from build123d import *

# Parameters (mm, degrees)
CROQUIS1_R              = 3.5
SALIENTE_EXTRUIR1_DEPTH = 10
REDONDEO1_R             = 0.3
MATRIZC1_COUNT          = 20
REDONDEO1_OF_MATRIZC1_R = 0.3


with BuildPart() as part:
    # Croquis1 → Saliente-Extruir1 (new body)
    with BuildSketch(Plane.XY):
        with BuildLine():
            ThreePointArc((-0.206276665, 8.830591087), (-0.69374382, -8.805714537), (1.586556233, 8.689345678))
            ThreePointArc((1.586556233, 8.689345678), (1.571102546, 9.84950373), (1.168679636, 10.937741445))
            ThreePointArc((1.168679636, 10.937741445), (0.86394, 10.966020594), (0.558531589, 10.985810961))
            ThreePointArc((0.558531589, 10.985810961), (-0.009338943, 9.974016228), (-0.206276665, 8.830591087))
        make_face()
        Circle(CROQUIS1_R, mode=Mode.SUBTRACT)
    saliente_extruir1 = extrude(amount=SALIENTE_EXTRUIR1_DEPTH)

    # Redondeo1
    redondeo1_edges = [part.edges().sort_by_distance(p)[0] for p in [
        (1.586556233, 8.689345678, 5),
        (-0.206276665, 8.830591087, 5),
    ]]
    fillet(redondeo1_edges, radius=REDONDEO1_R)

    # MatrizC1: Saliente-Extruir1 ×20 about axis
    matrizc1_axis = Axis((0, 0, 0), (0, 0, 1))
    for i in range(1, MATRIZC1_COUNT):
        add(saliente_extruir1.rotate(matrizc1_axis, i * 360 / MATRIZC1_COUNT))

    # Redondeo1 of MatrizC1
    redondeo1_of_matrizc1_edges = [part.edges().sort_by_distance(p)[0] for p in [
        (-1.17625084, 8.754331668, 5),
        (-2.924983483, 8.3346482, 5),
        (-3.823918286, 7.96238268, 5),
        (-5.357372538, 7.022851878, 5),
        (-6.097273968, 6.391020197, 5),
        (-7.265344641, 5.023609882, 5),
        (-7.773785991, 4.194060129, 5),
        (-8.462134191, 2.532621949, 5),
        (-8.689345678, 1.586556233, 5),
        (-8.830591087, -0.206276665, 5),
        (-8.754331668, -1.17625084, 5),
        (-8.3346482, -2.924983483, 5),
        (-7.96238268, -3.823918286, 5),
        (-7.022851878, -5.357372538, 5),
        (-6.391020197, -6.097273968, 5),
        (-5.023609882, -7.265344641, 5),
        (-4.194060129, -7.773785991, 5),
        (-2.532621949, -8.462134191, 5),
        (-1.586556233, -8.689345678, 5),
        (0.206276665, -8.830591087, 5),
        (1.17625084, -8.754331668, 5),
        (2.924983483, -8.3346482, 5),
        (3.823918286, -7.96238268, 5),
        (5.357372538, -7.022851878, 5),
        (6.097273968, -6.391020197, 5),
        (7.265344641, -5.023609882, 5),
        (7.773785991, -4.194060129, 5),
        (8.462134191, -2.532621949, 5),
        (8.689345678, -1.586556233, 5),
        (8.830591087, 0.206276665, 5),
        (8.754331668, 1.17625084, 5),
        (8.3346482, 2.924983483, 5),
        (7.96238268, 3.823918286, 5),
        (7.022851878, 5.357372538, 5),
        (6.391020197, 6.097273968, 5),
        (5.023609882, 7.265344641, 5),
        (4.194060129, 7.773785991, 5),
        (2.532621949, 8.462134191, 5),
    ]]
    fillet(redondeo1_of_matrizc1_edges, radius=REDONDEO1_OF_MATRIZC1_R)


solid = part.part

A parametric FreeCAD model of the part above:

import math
import FreeCAD as App
import Part
import Sketcher
from FreeCAD import Vector
Q = App.Units.Quantity


def edges_at(feature, points):
    """Names of the edges that pass closest to the given points."""
    edges = feature.Shape.Edges
    near = lambda p: min(range(len(edges)), key=lambda i: edges[i].distToShape(Part.Vertex(*p))[0])
    return sorted({f"Edge{near(p) + 1}" for p in points})

doc = App.newDocument("Part")
body = doc.addObject("PartDesign::Body", "Body")

# Sketch on XY plane
sketch1 = doc.addObject("Sketcher::SketchObject", "Sketch")
body.addObject(sketch1)
sketch1.AttachmentSupport = (doc.XY_Plane, [""])
sketch1.MapMode = "FlatFace"
sketch1.addGeometry([
    Part.ArcOfCircle(Part.Circle(Vector(0, 0, 0), Vector(0, 0, 1), 8.833), math.radians(91.338147), math.radians(439.652553)),  # 0
    Part.ArcOfCircle(Part.Circle(Vector(-1.791587, 9.22453, 0), Vector(0, 0, 1), 3.420273), math.radians(-9.002295), math.radians(30.0595)),  # 1
    Part.ArcOfCircle(Part.Circle(Vector(0, -0.000002, 0), Vector(0, 0, 1), 11.000002), math.radians(83.90118), math.radians(87.089521)),  # 2
    Part.ArcOfCircle(Part.Circle(Vector(3.213997, 8.830173, 0), Vector(0, 0, 1), 3.420273), math.radians(140.9312), math.radians(179.992996)),  # 3
    Part.Circle(Vector(0, 0, 0), Vector(0, 0, 1), 3.5),  # 4
], False)
sketch1.addConstraint([
    Sketcher.Constraint("Coincident", 0, 2, 1, 1),
    Sketcher.Constraint("Coincident", 1, 2, 2, 1),
    Sketcher.Constraint("Coincident", 2, 2, 3, 1),
    Sketcher.Constraint("Coincident", 3, 2, 0, 1),
    Sketcher.Constraint("Coincident", 0, 3, -1, 1),
    Sketcher.Constraint("Coincident", 2, 3, -1, 1),
    Sketcher.Constraint("Coincident", 4, 3, -1, 1),
    Sketcher.Constraint("Equal", 1, 3),
    Sketcher.Constraint("Diameter", 4, Q("7 mm")),
    Sketcher.Constraint("Radius", 2, Q("11.000002 mm")),
    Sketcher.Constraint("Radius", 0, Q("8.833 mm")),
    Sketcher.Constraint("Radius", 1, Q("3.420273 mm")),
    Sketcher.Constraint("DistanceY", -1, 1, 1, 3, Q("9.22453 mm")),
    Sketcher.Constraint("DistanceX", -1, 1, 1, 2, Q("1.16868 mm")),
    Sketcher.Constraint("DistanceX", -1, 1, 2, 2, Q("0.558532 mm")),
    Sketcher.Constraint("DistanceY", -1, 1, 3, 2, Q("8.830591 mm")),
])
pad1 = doc.addObject("PartDesign::Pad", "Pad")
body.addObject(pad1)
pad1.Profile = sketch1
pad1.Length = 10
doc.recompute()

fillet = doc.addObject("PartDesign::Fillet", "Fillet")
body.addObject(fillet)
fillet.Base = (pad1, edges_at(pad1, [(1.587, 8.689, 5), (-0.206, 8.831, 5)]))
fillet.Radius = 0.3
doc.recompute()

polarpattern = doc.addObject("PartDesign::PolarPattern", "PolarPattern")
body.addObject(polarpattern)
polarpattern.Originals = [pad1]
polarpattern.Axis = (doc.Z_Axis, [""])
polarpattern.Angle = 360
polarpattern.Occurrences = 20
body.Tip = polarpattern
doc.recompute()

fillet2 = doc.addObject("PartDesign::Fillet", "Fillet001")
body.addObject(fillet2)
fillet2.Base = (polarpattern, edges_at(polarpattern, [
    (-1.176, 8.754, 5),
    (-2.925, 8.335, 5),
    (-3.824, 7.962, 5),
    (-5.357, 7.023, 5),
    (-6.097, 6.391, 5),
    (-7.265, 5.024, 5),
    (-7.774, 4.194, 5),
    (-8.462, 2.533, 5),
    (-8.689, 1.587, 5),
    (-8.831, -0.206, 5),
    (-8.754, -1.176, 5),
    (-8.335, -2.925, 5),
    (-7.962, -3.824, 5),
    (-7.023, -5.357, 5),
    (-6.391, -6.097, 5),
    (-5.024, -7.265, 5),
    (-4.194, -7.774, 5),
    (-2.533, -8.462, 5),
    (-1.587, -8.689, 5),
    (0.206, -8.831, 5),
    (1.176, -8.754, 5),
    (2.925, -8.335, 5),
    (3.824, -7.962, 5),
    (5.357, -7.023, 5),
    (6.097, -6.391, 5),
    (7.265, -5.024, 5),
    (7.774, -4.194, 5),
    (8.462, -2.533, 5),
    (8.689, -1.587, 5),
    (8.831, 0.206, 5),
    (8.754, 1.176, 5),
    (8.335, 2.925, 5),
    (7.962, 3.824, 5),
    (7.023, 5.357, 5),
    (6.391, 6.097, 5),
    (5.024, 7.265, 5),
    (4.194, 7.774, 5),
    (2.533, 8.462, 5),
]))
fillet2.Radius = 0.3

doc.recompute()
